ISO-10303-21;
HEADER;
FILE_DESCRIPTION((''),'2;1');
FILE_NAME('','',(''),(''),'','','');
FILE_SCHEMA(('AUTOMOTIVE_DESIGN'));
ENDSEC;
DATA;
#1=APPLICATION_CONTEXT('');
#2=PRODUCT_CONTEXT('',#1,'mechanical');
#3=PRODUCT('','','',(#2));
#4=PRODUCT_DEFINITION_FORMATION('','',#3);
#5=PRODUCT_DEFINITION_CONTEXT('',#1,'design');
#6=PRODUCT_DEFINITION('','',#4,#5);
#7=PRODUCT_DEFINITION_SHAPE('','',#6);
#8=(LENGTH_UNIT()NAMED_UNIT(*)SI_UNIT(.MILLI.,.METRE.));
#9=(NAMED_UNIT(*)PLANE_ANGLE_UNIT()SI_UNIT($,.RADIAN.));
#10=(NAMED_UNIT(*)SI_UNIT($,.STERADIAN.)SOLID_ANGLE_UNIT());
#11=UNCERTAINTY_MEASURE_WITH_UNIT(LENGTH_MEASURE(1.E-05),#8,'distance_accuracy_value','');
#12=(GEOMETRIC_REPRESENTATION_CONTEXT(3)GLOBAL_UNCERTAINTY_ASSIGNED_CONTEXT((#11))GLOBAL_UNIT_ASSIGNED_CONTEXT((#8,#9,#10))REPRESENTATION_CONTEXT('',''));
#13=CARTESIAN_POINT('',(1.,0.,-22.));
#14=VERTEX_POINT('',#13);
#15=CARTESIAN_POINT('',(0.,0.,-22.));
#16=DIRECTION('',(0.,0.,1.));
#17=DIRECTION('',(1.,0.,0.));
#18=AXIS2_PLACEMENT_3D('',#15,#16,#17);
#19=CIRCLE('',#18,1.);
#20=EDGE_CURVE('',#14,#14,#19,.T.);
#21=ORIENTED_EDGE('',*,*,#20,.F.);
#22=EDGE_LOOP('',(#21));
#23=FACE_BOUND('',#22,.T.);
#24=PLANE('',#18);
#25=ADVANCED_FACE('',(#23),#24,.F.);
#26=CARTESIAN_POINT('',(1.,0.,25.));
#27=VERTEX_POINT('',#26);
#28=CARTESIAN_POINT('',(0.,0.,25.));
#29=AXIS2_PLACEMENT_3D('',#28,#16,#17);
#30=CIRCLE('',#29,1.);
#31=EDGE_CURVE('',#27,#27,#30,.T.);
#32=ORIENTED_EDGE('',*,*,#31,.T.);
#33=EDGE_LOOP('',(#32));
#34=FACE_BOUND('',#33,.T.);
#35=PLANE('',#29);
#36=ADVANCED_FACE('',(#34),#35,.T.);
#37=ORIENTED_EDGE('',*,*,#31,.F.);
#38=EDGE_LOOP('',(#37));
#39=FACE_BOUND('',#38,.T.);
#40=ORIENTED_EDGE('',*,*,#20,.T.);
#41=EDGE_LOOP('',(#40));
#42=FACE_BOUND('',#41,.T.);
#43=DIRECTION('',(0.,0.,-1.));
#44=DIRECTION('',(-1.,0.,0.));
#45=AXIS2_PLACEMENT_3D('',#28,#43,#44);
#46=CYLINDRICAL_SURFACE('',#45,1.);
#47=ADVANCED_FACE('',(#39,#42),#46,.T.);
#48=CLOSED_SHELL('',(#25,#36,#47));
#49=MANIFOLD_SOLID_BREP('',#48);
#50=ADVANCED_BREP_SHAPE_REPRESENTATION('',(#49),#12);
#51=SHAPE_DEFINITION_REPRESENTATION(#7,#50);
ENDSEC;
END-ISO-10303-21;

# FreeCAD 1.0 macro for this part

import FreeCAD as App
import Part
import Sketcher

doc = App.newDocument("Part")
body = doc.addObject("PartDesign::Body", "Body")

# Sketch on XY plane
sketch1 = body.newObject("Sketcher::SketchObject", "Sketch")
sketch1.AttachmentSupport = (doc.getObject("XY_Plane"), [""])
sketch1.MapMode = "FlatFace"
sketch1.addGeometry(Part.Circle(App.Vector(0, 0, 0), App.Vector(0, 0, 1), 1), False)
sketch1.addConstraint([
    Sketcher.Constraint("Coincident", 0, 3, -1, 1),
    Sketcher.Constraint("Diameter", 0, 2.0),
])
pad1 = body.newObject("PartDesign::Pad", "Pad")
pad1.Profile = sketch1
pad1.Type = "TwoLengths"
pad1.Length = 25
pad1.Length2 = 22

doc.recompute()
